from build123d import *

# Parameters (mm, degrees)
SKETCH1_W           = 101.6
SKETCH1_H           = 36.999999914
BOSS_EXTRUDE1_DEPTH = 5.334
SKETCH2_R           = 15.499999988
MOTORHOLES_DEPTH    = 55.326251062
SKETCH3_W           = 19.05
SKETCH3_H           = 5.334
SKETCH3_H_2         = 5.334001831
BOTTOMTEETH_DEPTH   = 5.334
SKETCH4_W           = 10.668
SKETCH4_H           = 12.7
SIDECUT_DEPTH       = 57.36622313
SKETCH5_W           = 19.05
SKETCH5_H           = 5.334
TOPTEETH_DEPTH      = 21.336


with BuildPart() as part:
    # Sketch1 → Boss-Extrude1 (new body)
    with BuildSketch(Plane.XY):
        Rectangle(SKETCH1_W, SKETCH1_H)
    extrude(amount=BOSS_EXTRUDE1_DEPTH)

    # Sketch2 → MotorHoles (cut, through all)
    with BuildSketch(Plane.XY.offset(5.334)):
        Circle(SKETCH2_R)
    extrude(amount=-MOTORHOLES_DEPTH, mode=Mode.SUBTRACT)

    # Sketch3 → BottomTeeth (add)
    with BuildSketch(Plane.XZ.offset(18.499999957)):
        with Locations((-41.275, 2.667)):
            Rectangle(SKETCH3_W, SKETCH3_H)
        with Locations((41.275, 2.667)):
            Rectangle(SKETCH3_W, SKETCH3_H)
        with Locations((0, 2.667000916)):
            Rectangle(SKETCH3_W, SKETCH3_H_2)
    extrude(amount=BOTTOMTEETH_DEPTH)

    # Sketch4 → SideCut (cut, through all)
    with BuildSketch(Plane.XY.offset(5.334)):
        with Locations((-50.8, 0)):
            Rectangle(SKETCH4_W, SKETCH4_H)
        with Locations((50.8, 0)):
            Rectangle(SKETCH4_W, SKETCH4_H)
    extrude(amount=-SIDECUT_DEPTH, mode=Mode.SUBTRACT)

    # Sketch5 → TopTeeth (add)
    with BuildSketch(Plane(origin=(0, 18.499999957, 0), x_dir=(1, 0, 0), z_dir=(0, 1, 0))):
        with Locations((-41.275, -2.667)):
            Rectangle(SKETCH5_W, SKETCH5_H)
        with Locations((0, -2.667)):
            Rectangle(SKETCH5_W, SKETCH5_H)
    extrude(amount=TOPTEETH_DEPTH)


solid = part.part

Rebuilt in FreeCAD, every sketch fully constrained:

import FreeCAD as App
import Part
import Sketcher
Q = App.Units.Quantity


def add_polygon(sketch, points):
    """Adds a closed chain of lines whose ends are joined by coincident constraints."""
    first, n = sketch.GeometryCount, len(points)
    for a, b in zip(points, points[1:] + points[:1]):
        sketch.addGeometry(Part.LineSegment(App.Vector(*a, 0), App.Vector(*b, 0)), False)
    for i in range(n):
        sketch.addConstraint(Sketcher.Constraint("Coincident", first + i, 2, first + (i + 1) % n, 1))

doc = App.newDocument("Part")
body = doc.addObject("PartDesign::Body", "Body")

sketch1 = doc.addObject("Sketcher::SketchObject", "Sketch")
body.addObject(sketch1)
sketch1.AttachmentSupport = (doc.XY_Plane, [""])
sketch1.MapMode = "FlatFace"
add_polygon(sketch1, [(-51, 18), (-51, -18), (51, -18), (51, 18)])
sketch1.addConstraint([
    Sketcher.Constraint("Vertical", 0),
    Sketcher.Constraint("Horizontal", 1),
    Sketcher.Constraint("Vertical", 2),
    Sketcher.Constraint("Horizontal", 3),
    Sketcher.Constraint("Symmetric", 0, 2, 2, 2, -1, 1),
    Sketcher.Constraint("DistanceX", 1, 1, 1, 2, Q("4 in")),
    Sketcher.Constraint("DistanceY", 0, 2, 0, 1, Q("37 mm")),
])
pad1 = doc.addObject("PartDesign::Pad", "Pad")
body.addObject(pad1)
pad1.Profile = sketch1
pad1.Length = Q("0.21 in")

sketch2 = doc.addObject("Sketcher::SketchObject", "Sketch001")
body.addObject(sketch2)
sketch2.AttachmentSupport = (doc.XY_Plane, [""])
sketch2.MapMode = "FlatFace"
sketch2.AttachmentOffset = App.Placement(App.Vector(0, 0, 0.21 * 25.4), App.Rotation())
sketch2.addGeometry(Part.Circle(App.Vector(0, 0, 0), App.Vector(0, 0, 1), 15), False)
sketch2.addConstraint([
    Sketcher.Constraint("Coincident", 0, 3, -1, 1),
    Sketcher.Constraint("Diameter", 0, Q("31 mm")),
])
pocket1 = doc.addObject("PartDesign::Pocket", "Pocket")
body.addObject(pocket1)
pocket1.Profile = sketch2
pocket1.Type = "ThroughAll"

sketch3 = doc.addObject("Sketcher::SketchObject", "Sketch002")
body.addObject(sketch3)
sketch3.AttachmentSupport = (doc.XZ_Plane, [""])
sketch3.MapMode = "FlatFace"
sketch3.AttachmentOffset = App.Placement(App.Vector(0, 0, 18.5), App.Rotation())
add_polygon(sketch3, [(-51, 5), (-51, 0), (-32, 0), (-32, 5)])
add_polygon(sketch3, [(32, 5), (32, 0), (51, 0), (51, 5)])
add_polygon(sketch3, [(-10, 5), (-10, 0), (10, 0), (10, 5)])
sketch3.addConstraint([
    Sketcher.Constraint("Vertical", 0),
    Sketcher.Constraint("Horizontal", 1),
    Sketcher.Constraint("Vertical", 2),
    Sketcher.Constraint("Horizontal", 3),
    Sketcher.Constraint("Vertical", 4),
    Sketcher.Constraint("Horizontal", 5),
    Sketcher.Constraint("Vertical", 6),
    Sketcher.Constraint("Horizontal", 7),
    Sketcher.Constraint("Vertical", 8),
    Sketcher.Constraint("Horizontal", 9),
    Sketcher.Constraint("Vertical", 10),
    Sketcher.Constraint("Horizontal", 11),
    Sketcher.Constraint("Symmetric", 1, 2, 4, 2, -1, 1),
    Sketcher.Constraint("Symmetric", 8, 2, 9, 2, -1, 1),
    Sketcher.Constraint("Symmetric", 0, 2, 5, 2, -2),
    Sketcher.Constraint("Horizontal", 3, 2, 6, 2),
    Sketcher.Constraint("Horizontal", 7, 2, 10, 2),
    Sketcher.Constraint("Equal", 7, 9),
    Sketcher.Constraint("DistanceX", 0, 2, -1, 1, Q("2 in")),
    Sketcher.Constraint("DistanceX", 1, 1, 1, 2, Q("0.75 in")),
    Sketcher.Constraint("DistanceY", 0, 2, 0, 1, Q("0.21 in")),
])
pad2 = doc.addObject("PartDesign::Pad", "Pad001")
body.addObject(pad2)
pad2.Profile = sketch3
pad2.Length = Q("0.21 in")

sketch4 = doc.addObject("Sketcher::SketchObject", "Sketch003")
body.addObject(sketch4)
sketch4.AttachmentSupport = (doc.XY_Plane, [""])
sketch4.MapMode = "FlatFace"
sketch4.AttachmentOffset = App.Placement(App.Vector(0, 0, 0.21 * 25.4), App.Rotation())
add_polygon(sketch4, [(-56, 6), (-56, -6), (-45, -6), (-45, 6)])
add_polygon(sketch4, [(45, 6), (45, -6), (56, -6), (56, 6)])
sketch4.addConstraint([
    Sketcher.Constraint("Vertical", 0),
    Sketcher.Constraint("Horizontal", 1),
    Sketcher.Constraint("Vertical", 2),
    Sketcher.Constraint("Horizontal", 3),
    Sketcher.Constraint("Vertical", 4),
    Sketcher.Constraint("Horizontal", 5),
    Sketcher.Constraint("Vertical", 6),
    Sketcher.Constraint("Horizontal", 7),
    Sketcher.Constraint("Symmetric", 2, 2, 4, 2, -1, 1),
    Sketcher.Constraint("Symmetric", 0, 2, 6, 2, -1, 1),
    Sketcher.Constraint("Horizontal", 1, 2, 4, 2),
    Sketcher.Constraint("DistanceY", 0, 2, 0, 1, Q("0.5 in")),
    Sketcher.Constraint("DistanceX", 0, 2, 4, 2, Q("4 in")),
    Sketcher.Constraint("DistanceX", 1, 1, 1, 2, Q("0.42 in")),
])
pocket2 = doc.addObject("PartDesign::Pocket", "Pocket001")
body.addObject(pocket2)
pocket2.Profile = sketch4
pocket2.Type = "ThroughAll"

sketch5 = doc.addObject("Sketcher::SketchObject", "Sketch004")
body.addObject(sketch5)
sketch5.AttachmentSupport = (doc.XZ_Plane, [""])
sketch5.MapMode = "FlatFace"
sketch5.AttachmentOffset = App.Placement(App.Vector(0, 0, -18.5), App.Rotation())
add_polygon(sketch5, [(-51, 0), (-51, 5), (-32, 5), (-32, 0)])
add_polygon(sketch5, [(-10, 0), (-10, 5), (10, 5), (10, 0)])
sketch5.addConstraint([
    Sketcher.Constraint("Vertical", 0),
    Sketcher.Constraint("Horizontal", 1),
    Sketcher.Constraint("Vertical", 2),
    Sketcher.Constraint("Horizontal", 3),
    Sketcher.Constraint("Vertical", 4),
    Sketcher.Constraint("Horizontal", 5),
    Sketcher.Constraint("Vertical", 6),
    Sketcher.Constraint("Horizontal", 7),
    Sketcher.Constraint("Symmetric", 6, 2, 7, 2, -1, 1),
    Sketcher.Constraint("PointOnObject", 2, 2, -1),
    Sketcher.Constraint("Horizontal", 1, 2, 4, 2),
    Sketcher.Constraint("Equal", 3, 5),
    Sketcher.Constraint("DistanceX", 0, 2, -1, 1, Q("2 in")),
    Sketcher.Constraint("DistanceX", 1, 1, 1, 2, Q("0.75 in")),
    Sketcher.Constraint("DistanceY", 0, 1, 0, 2, Q("0.21 in")),
])
pad3 = doc.addObject("PartDesign::Pad", "Pad002")
body.addObject(pad3)
pad3.Profile = sketch5
pad3.Length = Q("0.84 in")
pad3.Reversed = True

doc.recompute()
